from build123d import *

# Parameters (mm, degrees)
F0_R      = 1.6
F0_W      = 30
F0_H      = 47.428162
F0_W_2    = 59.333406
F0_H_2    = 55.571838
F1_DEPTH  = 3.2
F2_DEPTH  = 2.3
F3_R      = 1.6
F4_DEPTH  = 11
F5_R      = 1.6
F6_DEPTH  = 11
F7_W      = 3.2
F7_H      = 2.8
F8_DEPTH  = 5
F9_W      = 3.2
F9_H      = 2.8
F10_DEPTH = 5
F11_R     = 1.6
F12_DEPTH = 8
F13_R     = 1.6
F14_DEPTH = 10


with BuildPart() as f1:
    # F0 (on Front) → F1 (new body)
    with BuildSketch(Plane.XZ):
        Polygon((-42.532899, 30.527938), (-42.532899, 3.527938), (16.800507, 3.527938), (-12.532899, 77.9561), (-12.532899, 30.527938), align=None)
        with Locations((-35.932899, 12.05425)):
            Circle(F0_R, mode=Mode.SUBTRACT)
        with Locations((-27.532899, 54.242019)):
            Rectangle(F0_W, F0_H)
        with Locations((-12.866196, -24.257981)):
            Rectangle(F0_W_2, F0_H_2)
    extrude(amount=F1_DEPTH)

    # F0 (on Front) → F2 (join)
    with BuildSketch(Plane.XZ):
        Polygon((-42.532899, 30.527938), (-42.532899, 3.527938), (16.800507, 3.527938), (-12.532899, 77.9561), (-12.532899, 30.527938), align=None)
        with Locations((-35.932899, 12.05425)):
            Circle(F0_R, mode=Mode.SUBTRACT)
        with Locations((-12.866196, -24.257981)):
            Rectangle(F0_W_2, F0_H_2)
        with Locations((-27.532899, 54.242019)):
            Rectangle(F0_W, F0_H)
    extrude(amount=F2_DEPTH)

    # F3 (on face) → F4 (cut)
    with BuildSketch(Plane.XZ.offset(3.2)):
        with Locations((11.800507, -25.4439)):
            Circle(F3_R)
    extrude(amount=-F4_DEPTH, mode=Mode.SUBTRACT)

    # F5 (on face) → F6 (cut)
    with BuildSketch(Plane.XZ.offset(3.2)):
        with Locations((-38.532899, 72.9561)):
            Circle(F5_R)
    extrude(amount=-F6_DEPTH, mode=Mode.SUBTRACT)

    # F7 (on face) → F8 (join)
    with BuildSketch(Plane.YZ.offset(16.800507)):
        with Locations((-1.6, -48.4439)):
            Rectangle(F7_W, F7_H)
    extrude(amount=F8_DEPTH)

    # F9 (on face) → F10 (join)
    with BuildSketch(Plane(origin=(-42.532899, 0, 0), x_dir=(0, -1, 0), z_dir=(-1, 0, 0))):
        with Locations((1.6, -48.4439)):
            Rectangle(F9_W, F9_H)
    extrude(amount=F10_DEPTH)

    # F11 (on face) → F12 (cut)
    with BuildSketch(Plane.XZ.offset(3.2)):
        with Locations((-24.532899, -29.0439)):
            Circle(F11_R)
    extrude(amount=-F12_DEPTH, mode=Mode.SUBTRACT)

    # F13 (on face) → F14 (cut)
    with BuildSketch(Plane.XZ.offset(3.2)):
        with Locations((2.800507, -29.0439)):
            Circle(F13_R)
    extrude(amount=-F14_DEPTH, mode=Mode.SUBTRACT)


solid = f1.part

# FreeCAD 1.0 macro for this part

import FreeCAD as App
import Part
import Sketcher

doc = App.newDocument("Part")
params = doc.addObject("Spreadsheet::Sheet", "Params")
for row, (alias, value) in enumerate([
    ("sketch1_diameter", "3.2 mm"),
    ("sketch1_width", "30 mm"),
    ("sketch1_height", "130 mm"),
    ("sketch1_length", "80 mm"),
    ("pad1_length", "3.2 mm"),
    ("sketch2_diameter", "3.2 mm"),
    ("sketch2_width", "30 mm"),
    ("sketch2_height", "130 mm"),
    ("sketch2_length", "80 mm"),
    ("pad2_length", "2.3 mm"),
    ("sketch3_diameter", "3.2 mm"),
    ("pocket1_length", "11 mm"),
    ("sketch4_diameter", "3.2 mm"),
    ("pocket2_length", "11 mm"),
    ("sketch5_width", "3.2 mm"),
    ("sketch5_height", "2.8 mm"),
    ("pad3_length", "5 mm"),
    ("sketch6_width", "3.2 mm"),
    ("sketch6_height", "2.8 mm"),
    ("pad4_length", "5 mm"),
    ("sketch7_diameter", "3.2 mm"),
    ("pocket3_length", "8 mm"),
    ("sketch8_diameter", "3.2 mm"),
    ("pocket4_length", "10 mm"),
], start=1):
    params.set(f"A{row}", alias)
    params.set(f"B{row}", "=" + value)
    params.setAlias(f"B{row}", alias)

body = doc.addObject("PartDesign::Body", "Body")

# Sketch on XZ plane
sketch1 = doc.addObject("Sketcher::SketchObject", "Sketch")
body.addObject(sketch1)
sketch1.AttachmentSupport = (doc.XZ_Plane, [""])
sketch1.MapMode = "FlatFace"
sketch1.addGeometry([
    Part.LineSegment(App.Vector(16.8, 3.5, 0), App.Vector(-12.5, 78, 0)),  # 0
    Part.LineSegment(App.Vector(-12.5, 78, 0), App.Vector(-42.5, 78, 0)),  # 1
    Part.LineSegment(App.Vector(-42.5, 78, 0), App.Vector(-42.5, -52, 0)),  # 2
    Part.LineSegment(App.Vector(-42.5, -52, 0), App.Vector(16.8, -52, 0)),  # 3
    Part.LineSegment(App.Vector(16.8, -52, 0), App.Vector(16.8, 3.5, 0)),  # 4
    Part.Circle(App.Vector(-35.9, 12.1, 0), App.Vector(0, 0, 1), 1.6),  # 5
], False)
sketch1.addConstraint([
    Sketcher.Constraint("Coincident", 0, 2, 1, 1),
    Sketcher.Constraint("Coincident", 1, 2, 2, 1),
    Sketcher.Constraint("Coincident", 2, 2, 3, 1),
    Sketcher.Constraint("Coincident", 3, 2, 4, 1),
    Sketcher.Constraint("Coincident", 4, 2, 0, 1),
    Sketcher.Constraint("Horizontal", 1),
    Sketcher.Constraint("Vertical", 2),
    Sketcher.Constraint("Horizontal", 3),
    Sketcher.Constraint("Vertical", 4),
    Sketcher.Constraint("Diameter", 5, 3.2),
    Sketcher.Constraint("DistanceX", 1, 2, 1, 1, 30.0),
    Sketcher.Constraint("DistanceY", 2, 2, 2, 1, 130.0),
    Sketcher.Constraint("Distance", 0, 80.0),
    Sketcher.Constraint("DistanceX", 5, 3, 0, 2, 23.4),
    Sketcher.Constraint("DistanceX", 5, 3, -1, 1, 35.932899),
    Sketcher.Constraint("DistanceY", -1, 1, 0, 2, 77.9561),
    Sketcher.Constraint("DistanceX", 3, 1, 3, 2, 59.333406),
    Sketcher.Constraint("DistanceY", -1, 1, 5, 3, 12.05425),
])
sketch1.setExpression("Constraints[9]", "Params.sketch1_diameter")
sketch1.setExpression("Constraints[10]", "Params.sketch1_width")
sketch1.setExpression("Constraints[11]", "Params.sketch1_height")
sketch1.setExpression("Constraints[12]", "Params.sketch1_length")
pad1 = doc.addObject("PartDesign::Pad", "Pad")
body.addObject(pad1)
pad1.Profile = sketch1
pad1.setExpression("Length", "Params.pad1_length")

# Sketch on XZ plane
sketch2 = doc.addObject("Sketcher::SketchObject", "Sketch001")
body.addObject(sketch2)
sketch2.AttachmentSupport = (doc.XZ_Plane, [""])
sketch2.MapMode = "FlatFace"
sketch2.addGeometry([
    Part.LineSegment(App.Vector(-42.5, -52, 0), App.Vector(16.8, -52, 0)),  # 0
    Part.LineSegment(App.Vector(16.8, -52, 0), App.Vector(16.8, 3.5, 0)),  # 1
    Part.LineSegment(App.Vector(16.8, 3.5, 0), App.Vector(-12.5, 78, 0)),  # 2
    Part.LineSegment(App.Vector(-12.5, 78, 0), App.Vector(-42.5, 78, 0)),  # 3
    Part.LineSegment(App.Vector(-42.5, 78, 0), App.Vector(-42.5, -52, 0)),  # 4
    Part.Circle(App.Vector(-35.9, 12.1, 0), App.Vector(0, 0, 1), 1.6),  # 5
], False)
sketch2.addConstraint([
    Sketcher.Constraint("Coincident", 0, 2, 1, 1),
    Sketcher.Constraint("Coincident", 1, 2, 2, 1),
    Sketcher.Constraint("Coincident", 2, 2, 3, 1),
    Sketcher.Constraint("Coincident", 3, 2, 4, 1),
    Sketcher.Constraint("Coincident", 4, 2, 0, 1),
    Sketcher.Constraint("Horizontal", 0),
    Sketcher.Constraint("Vertical", 1),
    Sketcher.Constraint("Horizontal", 3),
    Sketcher.Constraint("Vertical", 4),
    Sketcher.Constraint("Diameter", 5, 3.2),
    Sketcher.Constraint("DistanceX", 3, 2, 3, 1, 30.0),
    Sketcher.Constraint("DistanceY", 4, 2, 4, 1, 130.0),
    Sketcher.Constraint("Distance", 2, 80.0),
    Sketcher.Constraint("DistanceX", 5, 3, 2, 2, 23.4),
    Sketcher.Constraint("DistanceX", 5, 3, -1, 1, 35.932899),
    Sketcher.Constraint("DistanceY", 0, 2, -1, 1, 52.0439),
    Sketcher.Constraint("DistanceX", 0, 1, 0, 2, 59.333406),
    Sketcher.Constraint("DistanceY", -1, 1, 5, 3, 12.05425),
])
sketch2.setExpression("Constraints[9]", "Params.sketch2_diameter")
sketch2.setExpression("Constraints[10]", "Params.sketch2_width")
sketch2.setExpression("Constraints[11]", "Params.sketch2_height")
sketch2.setExpression("Constraints[12]", "Params.sketch2_length")
pad2 = doc.addObject("PartDesign::Pad", "Pad001")
body.addObject(pad2)
pad2.Profile = sketch2
pad2.setExpression("Length", "Params.pad2_length")

# Sketch on XZ plane
sketch3 = doc.addObject("Sketcher::SketchObject", "Sketch002")
body.addObject(sketch3)
sketch3.AttachmentSupport = (doc.XZ_Plane, [""])
sketch3.MapMode = "FlatFace"
sketch3.AttachmentOffset = App.Placement(App.Vector(0, 0, 3.2), App.Rotation())
sketch3.addGeometry(Part.Circle(App.Vector(11.8, -25.4, 0), App.Vector(0, 0, 1), 1.6), False)
sketch3.addConstraint([
    Sketcher.Constraint("Diameter", 0, 3.2),
    Sketcher.Constraint("DistanceY", 0, 3, -1, 1, 25.4439),
    Sketcher.Constraint("DistanceX", -1, 1, 0, 3, 11.800507),
])
sketch3.setExpression("Constraints[0]", "Params.sketch3_diameter")
pocket1 = doc.addObject("PartDesign::Pocket", "Pocket")
body.addObject(pocket1)
pocket1.Profile = sketch3
pocket1.setExpression("Length", "Params.pocket1_length")

# Sketch on XZ plane
sketch4 = doc.addObject("Sketcher::SketchObject", "Sketch003")
body.addObject(sketch4)
sketch4.AttachmentSupport = (doc.XZ_Plane, [""])
sketch4.MapMode = "FlatFace"
sketch4.AttachmentOffset = App.Placement(App.Vector(0, 0, 3.2), App.Rotation())
sketch4.addGeometry(Part.Circle(App.Vector(-38.5, 73, 0), App.Vector(0, 0, 1), 1.6), False)
sketch4.addConstraint([
    Sketcher.Constraint("Diameter", 0, 3.2),
    Sketcher.Constraint("DistanceX", 0, 3, -1, 1, 38.532899),
    Sketcher.Constraint("DistanceY", -1, 1, 0, 3, 72.9561),
])
sketch4.setExpression("Constraints[0]", "Params.sketch4_diameter")
pocket2 = doc.addObject("PartDesign::Pocket", "Pocket001")
body.addObject(pocket2)
pocket2.Profile = sketch4
pocket2.setExpression("Length", "Params.pocket2_length")

# Sketch on YZ plane
sketch5 = doc.addObject("Sketcher::SketchObject", "Sketch004")
body.addObject(sketch5)
sketch5.AttachmentSupport = (doc.YZ_Plane, [""])
sketch5.MapMode = "FlatFace"
sketch5.AttachmentOffset = App.Placement(App.Vector(0, 0, 16.800507), App.Rotation())
sketch5.addGeometry([
    Part.LineSegment(App.Vector(-3.2, -47, 0), App.Vector(-3.2, -49.8, 0)),
    Part.LineSegment(App.Vector(-3.2, -49.8, 0), App.Vector(0, -49.8, 0)),
    Part.LineSegment(App.Vector(0, -49.8, 0), App.Vector(0, -47, 0)),
    Part.LineSegment(App.Vector(0, -47, 0), App.Vector(-3.2, -47, 0)),
], False)
sketch5.addConstraint([
    Sketcher.Constraint("Coincident", 0, 2, 1, 1),
    Sketcher.Constraint("Coincident", 1, 2, 2, 1),
    Sketcher.Constraint("Coincident", 2, 2, 3, 1),
    Sketcher.Constraint("Coincident", 3, 2, 0, 1),
    Sketcher.Constraint("Vertical", 0),
    Sketcher.Constraint("Horizontal", 1),
    Sketcher.Constraint("Vertical", 2),
    Sketcher.Constraint("Horizontal", 3),
    Sketcher.Constraint("PointOnObject", 1, 2, -2),
    Sketcher.Constraint("DistanceX", 1, 1, 1, 2, 3.2),
    Sketcher.Constraint("DistanceY", 0, 2, 0, 1, 2.8),
    Sketcher.Constraint("DistanceY", 0, 2, -1, 1, 49.8439),
])
sketch5.setExpression("Constraints[9]", "Params.sketch5_width")
sketch5.setExpression("Constraints[10]", "Params.sketch5_height")
pad3 = doc.addObject("PartDesign::Pad", "Pad002")
body.addObject(pad3)
pad3.Profile = sketch5
pad3.setExpression("Length", "Params.pad3_length")

# Sketch on YZ plane
sketch6 = doc.addObject("Sketcher::SketchObject", "Sketch005")
body.addObject(sketch6)
sketch6.AttachmentSupport = (doc.YZ_Plane, [""])
sketch6.MapMode = "FlatFace"
sketch6.AttachmentOffset = App.Placement(App.Vector(0, 0, -42.532899), App.Rotation())
sketch6.addGeometry([
    Part.LineSegment(App.Vector(0, -47, 0), App.Vector(0, -49.8, 0)),
    Part.LineSegment(App.Vector(0, -49.8, 0), App.Vector(-3.2, -49.8, 0)),
    Part.LineSegment(App.Vector(-3.2, -49.8, 0), App.Vector(-3.2, -47, 0)),
    Part.LineSegment(App.Vector(-3.2, -47, 0), App.Vector(0, -47, 0)),
], False)
sketch6.addConstraint([
    Sketcher.Constraint("Coincident", 0, 2, 1, 1),
    Sketcher.Constraint("Coincident", 1, 2, 2, 1),
    Sketcher.Constraint("Coincident", 2, 2, 3, 1),
    Sketcher.Constraint("Coincident", 3, 2, 0, 1),
    Sketcher.Constraint("Vertical", 0),
    Sketcher.Constraint("Horizontal", 1),
    Sketcher.Constraint("Vertical", 2),
    Sketcher.Constraint("Horizontal", 3),
    Sketcher.Constraint("PointOnObject", 0, 2, -2),
    Sketcher.Constraint("DistanceX", 1, 2, 1, 1, 3.2),
    Sketcher.Constraint("DistanceY", 0, 2, 0, 1, 2.8),
    Sketcher.Constraint("DistanceY", 0, 2, -1, 1, 49.8439),
])
sketch6.setExpression("Constraints[9]", "Params.sketch6_width")
sketch6.setExpression("Constraints[10]", "Params.sketch6_height")
pad4 = doc.addObject("PartDesign::Pad", "Pad003")
body.addObject(pad4)
pad4.Profile = sketch6
pad4.setExpression("Length", "Params.pad4_length")
pad4.Reversed = True

# Sketch on XZ plane
sketch7 = doc.addObject("Sketcher::SketchObject", "Sketch006")
body.addObject(sketch7)
sketch7.AttachmentSupport = (doc.XZ_Plane, [""])
sketch7.MapMode = "FlatFace"
sketch7.AttachmentOffset = App.Placement(App.Vector(0, 0, 3.2), App.Rotation())
sketch7.addGeometry(Part.Circle(App.Vector(-24.5, -29, 0), App.Vector(0, 0, 1), 1.6), False)
sketch7.addConstraint([
    Sketcher.Constraint("Diameter", 0, 3.2),
    Sketcher.Constraint("DistanceX", 0, 3, -1, 1, 24.532899),
    Sketcher.Constraint("DistanceY", 0, 3, -1, 1, 29.0439),
])
sketch7.setExpression("Constraints[0]", "Params.sketch7_diameter")
pocket3 = doc.addObject("PartDesign::Pocket", "Pocket002")
body.addObject(pocket3)
pocket3.Profile = sketch7
pocket3.setExpression("Length", "Params.pocket3_length")

# Sketch on XZ plane
sketch8 = doc.addObject("Sketcher::SketchObject", "Sketch007")
body.addObject(sketch8)
sketch8.AttachmentSupport = (doc.XZ_Plane, [""])
sketch8.MapMode = "FlatFace"
sketch8.AttachmentOffset = App.Placement(App.Vector(0, 0, 3.2), App.Rotation())
sketch8.addGeometry(Part.Circle(App.Vector(2.8, -29, 0), App.Vector(0, 0, 1), 1.6), False)
sketch8.addConstraint([
    Sketcher.Constraint("Diameter", 0, 3.2),
    Sketcher.Constraint("DistanceY", 0, 3, -1, 1, 29.0439),
    Sketcher.Constraint("DistanceX", -1, 1, 0, 3, 2.800507),
])
sketch8.setExpression("Constraints[0]", "Params.sketch8_diameter")
pocket4 = doc.addObject("PartDesign::Pocket", "Pocket003")
body.addObject(pocket4)
pocket4.Profile = sketch8
pocket4.setExpression("Length", "Params.pocket4_length")

doc.recompute()
